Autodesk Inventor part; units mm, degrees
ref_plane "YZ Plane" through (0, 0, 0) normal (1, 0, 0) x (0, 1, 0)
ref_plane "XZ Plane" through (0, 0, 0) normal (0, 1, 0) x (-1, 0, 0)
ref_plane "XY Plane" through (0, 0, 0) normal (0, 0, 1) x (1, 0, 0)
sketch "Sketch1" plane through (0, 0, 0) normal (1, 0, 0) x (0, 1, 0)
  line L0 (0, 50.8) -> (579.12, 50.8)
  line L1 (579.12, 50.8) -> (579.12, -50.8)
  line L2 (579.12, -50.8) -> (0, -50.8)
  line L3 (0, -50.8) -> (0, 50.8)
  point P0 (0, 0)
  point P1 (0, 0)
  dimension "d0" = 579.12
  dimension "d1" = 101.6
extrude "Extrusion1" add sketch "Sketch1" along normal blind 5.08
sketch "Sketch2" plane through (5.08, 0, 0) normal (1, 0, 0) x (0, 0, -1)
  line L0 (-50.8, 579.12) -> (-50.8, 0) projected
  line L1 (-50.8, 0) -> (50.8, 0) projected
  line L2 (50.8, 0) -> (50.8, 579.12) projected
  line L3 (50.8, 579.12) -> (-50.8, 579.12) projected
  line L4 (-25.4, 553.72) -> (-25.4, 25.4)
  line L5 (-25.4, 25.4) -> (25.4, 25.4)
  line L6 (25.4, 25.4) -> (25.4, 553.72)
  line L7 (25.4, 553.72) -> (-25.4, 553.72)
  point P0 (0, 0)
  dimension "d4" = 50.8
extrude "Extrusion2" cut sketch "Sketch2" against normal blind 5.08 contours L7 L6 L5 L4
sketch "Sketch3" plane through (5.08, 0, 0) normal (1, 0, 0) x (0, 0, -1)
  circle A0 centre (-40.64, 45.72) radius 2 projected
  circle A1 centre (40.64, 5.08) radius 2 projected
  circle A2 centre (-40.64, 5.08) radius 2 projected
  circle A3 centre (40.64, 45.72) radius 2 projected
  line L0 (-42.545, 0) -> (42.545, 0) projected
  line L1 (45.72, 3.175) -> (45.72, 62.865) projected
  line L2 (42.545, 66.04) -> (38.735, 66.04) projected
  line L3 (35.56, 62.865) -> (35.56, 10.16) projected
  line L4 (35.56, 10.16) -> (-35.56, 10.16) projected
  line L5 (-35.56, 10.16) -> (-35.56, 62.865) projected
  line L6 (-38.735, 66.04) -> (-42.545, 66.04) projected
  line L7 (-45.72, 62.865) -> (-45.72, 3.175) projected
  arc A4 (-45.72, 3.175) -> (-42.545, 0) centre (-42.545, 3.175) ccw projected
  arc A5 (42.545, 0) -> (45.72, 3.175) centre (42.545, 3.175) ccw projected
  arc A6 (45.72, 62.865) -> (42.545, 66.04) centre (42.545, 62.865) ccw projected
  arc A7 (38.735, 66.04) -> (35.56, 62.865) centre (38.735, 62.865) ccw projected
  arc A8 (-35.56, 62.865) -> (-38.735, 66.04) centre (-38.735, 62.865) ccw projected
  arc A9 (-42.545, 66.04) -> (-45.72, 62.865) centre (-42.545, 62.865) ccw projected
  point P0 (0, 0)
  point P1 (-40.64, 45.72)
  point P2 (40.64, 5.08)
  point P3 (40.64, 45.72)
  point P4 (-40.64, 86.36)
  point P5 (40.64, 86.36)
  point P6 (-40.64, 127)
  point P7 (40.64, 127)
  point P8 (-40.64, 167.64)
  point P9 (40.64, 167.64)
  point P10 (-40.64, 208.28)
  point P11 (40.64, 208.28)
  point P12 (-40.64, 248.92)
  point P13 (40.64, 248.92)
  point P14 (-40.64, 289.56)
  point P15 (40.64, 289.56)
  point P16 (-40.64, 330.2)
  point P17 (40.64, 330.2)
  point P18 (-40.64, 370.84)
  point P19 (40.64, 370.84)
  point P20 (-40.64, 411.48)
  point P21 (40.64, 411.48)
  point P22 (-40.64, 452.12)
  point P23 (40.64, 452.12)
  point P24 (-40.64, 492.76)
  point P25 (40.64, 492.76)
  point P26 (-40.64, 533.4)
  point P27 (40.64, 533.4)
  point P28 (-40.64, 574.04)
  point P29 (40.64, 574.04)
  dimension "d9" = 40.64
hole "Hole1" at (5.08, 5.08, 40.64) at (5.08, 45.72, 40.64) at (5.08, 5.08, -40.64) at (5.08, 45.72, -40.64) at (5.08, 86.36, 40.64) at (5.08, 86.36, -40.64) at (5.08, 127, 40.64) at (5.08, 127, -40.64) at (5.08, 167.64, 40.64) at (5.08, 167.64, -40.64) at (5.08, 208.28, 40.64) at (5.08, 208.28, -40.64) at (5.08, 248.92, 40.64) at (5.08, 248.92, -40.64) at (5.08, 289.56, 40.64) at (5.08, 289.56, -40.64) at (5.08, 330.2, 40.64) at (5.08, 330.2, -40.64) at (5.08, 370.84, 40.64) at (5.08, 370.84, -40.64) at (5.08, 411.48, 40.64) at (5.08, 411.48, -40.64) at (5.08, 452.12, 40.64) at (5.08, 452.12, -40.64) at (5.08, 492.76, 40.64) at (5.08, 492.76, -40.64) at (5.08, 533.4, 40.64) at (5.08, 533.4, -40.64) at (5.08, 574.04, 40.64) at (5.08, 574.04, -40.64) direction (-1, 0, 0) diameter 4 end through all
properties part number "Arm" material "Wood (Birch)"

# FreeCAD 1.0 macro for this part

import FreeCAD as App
import Part
import Sketcher

V = App.Vector
Q = App.Units.Quantity

doc = App.newDocument("Part")
body = doc.addObject("PartDesign::Body", "Body")

sketch1 = body.newObject("Sketcher::SketchObject", "Sketch")
sketch1.AttachmentSupport = (doc.getObject("YZ_Plane"), [""])
sketch1.MapMode = "FlatFace"
sketch1.addGeometry(Part.LineSegment(V(579, 51, 0), V(0, 51, 0)), False)
sketch1.addGeometry(Part.LineSegment(V(0, 51, 0), V(0, -51, 0)), False)
sketch1.addGeometry(Part.LineSegment(V(0, -51, 0), V(579, -51, 0)), False)
sketch1.addGeometry(Part.LineSegment(V(579, -51, 0), V(579, 51, 0)), False)
sketch1.addConstraint(Sketcher.Constraint("Coincident", 0, 2, 1, 1))
sketch1.addConstraint(Sketcher.Constraint("Coincident", 1, 2, 2, 1))
sketch1.addConstraint(Sketcher.Constraint("Coincident", 2, 2, 3, 1))
sketch1.addConstraint(Sketcher.Constraint("Coincident", 3, 2, 0, 1))
sketch1.addConstraint(Sketcher.Constraint("Horizontal", 0))
sketch1.addConstraint(Sketcher.Constraint("Vertical", 1))
sketch1.addConstraint(Sketcher.Constraint("Horizontal", 2))
sketch1.addConstraint(Sketcher.Constraint("Vertical", 3))
sketch1.addConstraint(Sketcher.Constraint("Symmetric", 0, 2, 1, 2, -1, 1))
sketch1.addConstraint(Sketcher.Constraint("DistanceY", 1, 2, 1, 1, Q("4 in")))
sketch1.addConstraint(Sketcher.Constraint("DistanceX", 0, 2, 0, 1, Q("22.8 in")))
pad1 = body.newObject("PartDesign::Pad", "Pad")
pad1.Profile = sketch1
pad1.Length = Q("0.2 in")

sketch2 = body.newObject("Sketcher::SketchObject", "Sketch001")
sketch2.AttachmentSupport = (doc.getObject("YZ_Plane"), [""])
sketch2.MapMode = "FlatFace"
sketch2.AttachmentOffset = App.Placement(V(0, 0, 0.2 * 25.4), App.Rotation())
sketch2.addGeometry(Part.LineSegment(V(554, -25, 0), V(554, 25, 0)), False)
sketch2.addGeometry(Part.LineSegment(V(554, 25, 0), V(25, 25, 0)), False)
sketch2.addGeometry(Part.LineSegment(V(25, 25, 0), V(25, -25, 0)), False)
sketch2.addGeometry(Part.LineSegment(V(25, -25, 0), V(554, -25, 0)), False)
sketch2.addConstraint(Sketcher.Constraint("Coincident", 0, 2, 1, 1))
sketch2.addConstraint(Sketcher.Constraint("Coincident", 1, 2, 2, 1))
sketch2.addConstraint(Sketcher.Constraint("Coincident", 2, 2, 3, 1))
sketch2.addConstraint(Sketcher.Constraint("Coincident", 3, 2, 0, 1))
sketch2.addConstraint(Sketcher.Constraint("Vertical", 0))
sketch2.addConstraint(Sketcher.Constraint("Horizontal", 1))
sketch2.addConstraint(Sketcher.Constraint("Vertical", 2))
sketch2.addConstraint(Sketcher.Constraint("Horizontal", 3))
sketch2.addConstraint(Sketcher.Constraint("DistanceY", 0, 1, 0, 2, Q("2 in")))
sketch2.addConstraint(Sketcher.Constraint("DistanceX", 1, 2, 1, 1, Q("20.8 in")))
sketch2.addConstraint(Sketcher.Constraint("DistanceY", -1, 1, 0, 2, Q("1 in")))
sketch2.addConstraint(Sketcher.Constraint("DistanceX", -1, 1, 1, 2, Q("1 in")))
pocket1 = body.newObject("PartDesign::Pocket", "Pocket")
pocket1.Profile = sketch2
pocket1.Length = Q("0.2 in")

sketch3 = body.newObject("Sketcher::SketchObject", "Sketch002")
sketch3.AttachmentSupport = (doc.getObject("YZ_Plane"), [""])
sketch3.MapMode = "FlatFace"
sketch3.AttachmentOffset = App.Placement(V(0, 0, 0.2 * 25.4), App.Rotation())
sketch3.addGeometry(Part.Circle(V(5.1, 40.6, 0), V(0, 0, 1), 2), False)
sketch3.addGeometry(Part.Circle(V(45.7, 40.6, 0), V(0, 0, 1), 2), False)
sketch3.addGeometry(Part.Circle(V(5.1, -40.6, 0), V(0, 0, 1), 2), False)
sketch3.addGeometry(Part.Circle(V(45.7, -40.6, 0), V(0, 0, 1), 2), False)
sketch3.addGeometry(Part.Circle(V(86.4, 40.6, 0), V(0, 0, 1), 2), False)
sketch3.addGeometry(Part.Circle(V(86.4, -40.6, 0), V(0, 0, 1), 2), False)
sketch3.addGeometry(Part.Circle(V(127, 40.6, 0), V(0, 0, 1), 2), False)
sketch3.addGeometry(Part.Circle(V(127, -40.6, 0), V(0, 0, 1), 2), False)
sketch3.addGeometry(Part.Circle(V(167.6, 40.6, 0), V(0, 0, 1), 2), False)
sketch3.addGeometry(Part.Circle(V(167.6, -40.6, 0), V(0, 0, 1), 2), False)
sketch3.addGeometry(Part.Circle(V(208.3, 40.6, 0), V(0, 0, 1), 2), False)
sketch3.addGeometry(Part.Circle(V(208.3, -40.6, 0), V(0, 0, 1), 2), False)
sketch3.addGeometry(Part.Circle(V(248.9, 40.6, 0), V(0, 0, 1), 2), False)
sketch3.addGeometry(Part.Circle(V(248.9, -40.6, 0), V(0, 0, 1), 2), False)
sketch3.addGeometry(Part.Circle(V(289.6, 40.6, 0), V(0, 0, 1), 2), False)
sketch3.addGeometry(Part.Circle(V(289.6, -40.6, 0), V(0, 0, 1), 2), False)
sketch3.addGeometry(Part.Circle(V(330.2, 40.6, 0), V(0, 0, 1), 2), False)
sketch3.addGeometry(Part.Circle(V(330.2, -40.6, 0), V(0, 0, 1), 2), False)
sketch3.addGeometry(Part.Circle(V(370.8, 40.6, 0), V(0, 0, 1), 2), False)
sketch3.addGeometry(Part.Circle(V(370.8, -40.6, 0), V(0, 0, 1), 2), False)
sketch3.addGeometry(Part.Circle(V(411.5, 40.6, 0), V(0, 0, 1), 2), False)
sketch3.addGeometry(Part.Circle(V(411.5, -40.6, 0), V(0, 0, 1), 2), False)
sketch3.addGeometry(Part.Circle(V(452.1, 40.6, 0), V(0, 0, 1), 2), False)
sketch3.addGeometry(Part.Circle(V(452.1, -40.6, 0), V(0, 0, 1), 2), False)
sketch3.addGeometry(Part.Circle(V(492.8, 40.6, 0), V(0, 0, 1), 2), False)
sketch3.addGeometry(Part.Circle(V(492.8, -40.6, 0), V(0, 0, 1), 2), False)
sketch3.addGeometry(Part.Circle(V(533.4, 40.6, 0), V(0, 0, 1), 2), False)
sketch3.addGeometry(Part.Circle(V(533.4, -40.6, 0), V(0, 0, 1), 2), False)
sketch3.addGeometry(Part.Circle(V(574, 40.6, 0), V(0, 0, 1), 2), False)
sketch3.addGeometry(Part.Circle(V(574, -40.6, 0), V(0, 0, 1), 2), False)
sketch3.addConstraint(Sketcher.Constraint("Equal", 0, 1))
sketch3.addConstraint(Sketcher.Constraint("Equal", 1, 2))
sketch3.addConstraint(Sketcher.Constraint("Equal", 2, 3))
sketch3.addConstraint(Sketcher.Constraint("Equal", 3, 4))
sketch3.addConstraint(Sketcher.Constraint("Equal", 4, 5))
sketch3.addConstraint(Sketcher.Constraint("Equal", 5, 6))
sketch3.addConstraint(Sketcher.Constraint("Equal", 6, 7))
sketch3.addConstraint(Sketcher.Constraint("Equal", 7, 8))
sketch3.addConstraint(Sketcher.Constraint("Equal", 8, 9))
sketch3.addConstraint(Sketcher.Constraint("Equal", 9, 10))
sketch3.addConstraint(Sketcher.Constraint("Equal", 10, 11))
sketch3.addConstraint(Sketcher.Constraint("Equal", 11, 12))
sketch3.addConstraint(Sketcher.Constraint("Equal", 12, 13))
sketch3.addConstraint(Sketcher.Constraint("Equal", 13, 14))
sketch3.addConstraint(Sketcher.Constraint("Equal", 14, 15))
sketch3.addConstraint(Sketcher.Constraint("Equal", 15, 16))
sketch3.addConstraint(Sketcher.Constraint("Equal", 16, 17))
sketch3.addConstraint(Sketcher.Constraint("Equal", 17, 18))
sketch3.addConstraint(Sketcher.Constraint("Equal", 18, 19))
sketch3.addConstraint(Sketcher.Constraint("Equal", 19, 20))
sketch3.addConstraint(Sketcher.Constraint("Equal", 20, 21))
sketch3.addConstraint(Sketcher.Constraint("Equal", 21, 22))
sketch3.addConstraint(Sketcher.Constraint("Equal", 22, 23))
sketch3.addConstraint(Sketcher.Constraint("Equal", 23, 24))
sketch3.addConstraint(Sketcher.Constraint("Equal", 24, 25))
sketch3.addConstraint(Sketcher.Constraint("Equal", 25, 26))
sketch3.addConstraint(Sketcher.Constraint("Equal", 26, 27))
sketch3.addConstraint(Sketcher.Constraint("Equal", 27, 28))
sketch3.addConstraint(Sketcher.Constraint("Equal", 28, 29))
sketch3.addConstraint(Sketcher.Constraint("Symmetric", 0, 3, 2, 3, -1))
sketch3.addConstraint(Sketcher.Constraint("Symmetric", 1, 3, 3, 3, -1))
sketch3.addConstraint(Sketcher.Constraint("Symmetric", 4, 3, 5, 3, -1))
sketch3.addConstraint(Sketcher.Constraint("Symmetric", 6, 3, 7, 3, -1))
sketch3.addConstraint(Sketcher.Constraint("Symmetric", 8, 3, 9, 3, -1))
sketch3.addConstraint(Sketcher.Constraint("Symmetric", 10, 3, 11, 3, -1))
sketch3.addConstraint(Sketcher.Constraint("Symmetric", 12, 3, 13, 3, -1))
sketch3.addConstraint(Sketcher.Constraint("Symmetric", 14, 3, 15, 3, -1))
sketch3.addConstraint(Sketcher.Constraint("Symmetric", 16, 3, 17, 3, -1))
sketch3.addConstraint(Sketcher.Constraint("Symmetric", 18, 3, 19, 3, -1))
sketch3.addConstraint(Sketcher.Constraint("Symmetric", 20, 3, 21, 3, -1))
sketch3.addConstraint(Sketcher.Constraint("Symmetric", 22, 3, 23, 3, -1))
sketch3.addConstraint(Sketcher.Constraint("Symmetric", 24, 3, 25, 3, -1))
sketch3.addConstraint(Sketcher.Constraint("Symmetric", 26, 3, 27, 3, -1))
sketch3.addConstraint(Sketcher.Constraint("Symmetric", 28, 3, 29, 3, -1))
sketch3.addConstraint(Sketcher.Constraint("Horizontal", 0, 3, 1, 3))
sketch3.addConstraint(Sketcher.Constraint("Horizontal", 1, 3, 4, 3))
sketch3.addConstraint(Sketcher.Constraint("Horizontal", 4, 3, 6, 3))
sketch3.addConstraint(Sketcher.Constraint("Horizontal", 6, 3, 8, 3))
sketch3.addConstraint(Sketcher.Constraint("Horizontal", 8, 3, 10, 3))
sketch3.addConstraint(Sketcher.Constraint("Horizontal", 10, 3, 12, 3))
sketch3.addConstraint(Sketcher.Constraint("Horizontal", 12, 3, 14, 3))
sketch3.addConstraint(Sketcher.Constraint("Horizontal", 14, 3, 16, 3))
sketch3.addConstraint(Sketcher.Constraint("Horizontal", 16, 3, 18, 3))
sketch3.addConstraint(Sketcher.Constraint("Horizontal", 18, 3, 20, 3))
sketch3.addConstraint(Sketcher.Constraint("Horizontal", 20, 3, 22, 3))
sketch3.addConstraint(Sketcher.Constraint("Horizontal", 22, 3, 24, 3))
sketch3.addConstraint(Sketcher.Constraint("Horizontal", 24, 3, 26, 3))
sketch3.addConstraint(Sketcher.Constraint("Horizontal", 26, 3, 28, 3))
sketch3.addConstraint(Sketcher.Constraint("DistanceX", -1, 1, 6, 3, Q("5 in")))
sketch3.addConstraint(Sketcher.Constraint("DistanceX", -1, 1, 16, 3, Q("13 in")))
sketch3.addConstraint(Sketcher.Constraint("DistanceX", -1, 1, 26, 3, Q("21 in")))
sketch3.addConstraint(Sketcher.Constraint("DistanceX", -1, 1, 0, 3, Q("0.2 in")))
sketch3.addConstraint(Sketcher.Constraint("DistanceY", -1, 1, 0, 3, Q("1.6 in")))
sketch3.addConstraint(Sketcher.Constraint("DistanceX", -1, 1, 1, 3, Q("1.8 in")))
sketch3.addConstraint(Sketcher.Constraint("DistanceX", -1, 1, 4, 3, Q("3.4 in")))
sketch3.addConstraint(Sketcher.Constraint("DistanceX", -1, 1, 8, 3, Q("6.6 in")))
sketch3.addConstraint(Sketcher.Constraint("DistanceX", -1, 1, 10, 3, Q("8.2 in")))
sketch3.addConstraint(Sketcher.Constraint("DistanceX", -1, 1, 12, 3, Q("9.8 in")))
sketch3.addConstraint(Sketcher.Constraint("DistanceX", -1, 1, 14, 3, Q("11.4 in")))
sketch3.addConstraint(Sketcher.Constraint("DistanceX", -1, 1, 18, 3, Q("14.6 in")))
sketch3.addConstraint(Sketcher.Constraint("DistanceX", -1, 1, 20, 3, Q("16.2 in")))
sketch3.addConstraint(Sketcher.Constraint("DistanceX", -1, 1, 22, 3, Q("17.8 in")))
sketch3.addConstraint(Sketcher.Constraint("DistanceX", -1, 1, 24, 3, Q("19.4 in")))
sketch3.addConstraint(Sketcher.Constraint("DistanceX", -1, 1, 28, 3, Q("22.6 in")))
sketch3.addConstraint(Sketcher.Constraint("Diameter", 0, Q("4 mm")))
doc.recompute()
hole = body.newObject("PartDesign::Hole", "Hole")
hole.Profile = sketch3
hole.ThreadType = "None"
hole.Diameter = 4
hole.DepthType = "ThroughAll"

doc.recompute()
